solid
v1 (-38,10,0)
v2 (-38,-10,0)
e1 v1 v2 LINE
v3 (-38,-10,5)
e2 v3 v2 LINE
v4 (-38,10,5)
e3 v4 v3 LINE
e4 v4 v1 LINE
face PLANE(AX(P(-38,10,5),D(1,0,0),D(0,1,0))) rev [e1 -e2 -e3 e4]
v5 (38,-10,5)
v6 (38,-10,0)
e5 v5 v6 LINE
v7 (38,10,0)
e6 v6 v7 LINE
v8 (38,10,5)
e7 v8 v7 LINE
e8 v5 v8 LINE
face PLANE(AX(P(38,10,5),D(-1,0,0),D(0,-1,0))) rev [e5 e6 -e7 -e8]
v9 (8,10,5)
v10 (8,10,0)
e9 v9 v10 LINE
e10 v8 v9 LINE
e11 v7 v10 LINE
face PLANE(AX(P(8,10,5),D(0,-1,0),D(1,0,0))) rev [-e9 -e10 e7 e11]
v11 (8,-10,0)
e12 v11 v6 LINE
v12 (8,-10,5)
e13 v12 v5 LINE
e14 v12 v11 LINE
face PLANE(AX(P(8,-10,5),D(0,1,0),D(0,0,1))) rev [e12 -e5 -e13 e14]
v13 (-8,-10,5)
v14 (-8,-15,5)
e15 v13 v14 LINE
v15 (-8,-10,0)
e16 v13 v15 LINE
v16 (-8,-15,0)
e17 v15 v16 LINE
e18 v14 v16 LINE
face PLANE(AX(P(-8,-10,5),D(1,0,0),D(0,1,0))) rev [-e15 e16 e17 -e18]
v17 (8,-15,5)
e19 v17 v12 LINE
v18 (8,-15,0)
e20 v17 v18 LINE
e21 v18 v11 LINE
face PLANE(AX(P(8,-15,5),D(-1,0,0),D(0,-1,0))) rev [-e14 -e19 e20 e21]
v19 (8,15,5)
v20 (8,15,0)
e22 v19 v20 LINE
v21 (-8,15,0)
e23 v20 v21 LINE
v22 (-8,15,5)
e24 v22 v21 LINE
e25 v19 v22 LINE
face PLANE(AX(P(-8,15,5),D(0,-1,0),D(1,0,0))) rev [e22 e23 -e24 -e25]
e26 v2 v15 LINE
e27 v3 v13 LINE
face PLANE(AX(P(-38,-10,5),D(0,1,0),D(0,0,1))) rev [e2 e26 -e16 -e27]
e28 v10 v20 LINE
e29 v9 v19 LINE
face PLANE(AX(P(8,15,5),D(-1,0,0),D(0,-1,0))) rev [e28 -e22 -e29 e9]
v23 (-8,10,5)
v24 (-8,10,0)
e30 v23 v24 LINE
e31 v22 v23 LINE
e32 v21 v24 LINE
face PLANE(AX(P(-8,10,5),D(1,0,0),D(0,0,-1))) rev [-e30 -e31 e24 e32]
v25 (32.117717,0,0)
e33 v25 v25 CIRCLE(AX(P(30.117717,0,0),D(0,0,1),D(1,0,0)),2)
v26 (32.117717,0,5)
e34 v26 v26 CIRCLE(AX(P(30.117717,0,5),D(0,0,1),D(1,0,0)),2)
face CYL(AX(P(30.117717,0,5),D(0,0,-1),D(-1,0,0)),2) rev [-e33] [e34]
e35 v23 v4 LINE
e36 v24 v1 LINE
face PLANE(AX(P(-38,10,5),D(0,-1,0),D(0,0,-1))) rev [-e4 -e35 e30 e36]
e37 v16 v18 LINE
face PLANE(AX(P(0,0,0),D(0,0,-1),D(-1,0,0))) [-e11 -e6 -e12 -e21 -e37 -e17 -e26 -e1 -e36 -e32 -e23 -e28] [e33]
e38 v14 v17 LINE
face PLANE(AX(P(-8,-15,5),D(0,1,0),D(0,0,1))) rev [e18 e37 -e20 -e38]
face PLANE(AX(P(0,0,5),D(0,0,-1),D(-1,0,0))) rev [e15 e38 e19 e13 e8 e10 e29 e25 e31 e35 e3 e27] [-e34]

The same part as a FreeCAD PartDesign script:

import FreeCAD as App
import Part
import Sketcher

V = App.Vector


def add_polygon(sketch, points):
    """Adds a closed chain of lines whose ends are joined by coincident constraints."""
    first, n = sketch.GeometryCount, len(points)
    for a, b in zip(points, points[1:] + points[:1]):
        sketch.addGeometry(Part.LineSegment(App.Vector(*a, 0), App.Vector(*b, 0)), False)
    for i in range(n):
        sketch.addConstraint(Sketcher.Constraint("Coincident", first + i, 2, first + (i + 1) % n, 1))

doc = App.newDocument("Part")
params = doc.addObject("Spreadsheet::Sheet", "Params")
for row, (alias, value) in enumerate([
    ("sketch1_diameter", "4 mm"),
    ("sketch1_width", "30 mm"),
    ("sketch1_width2", "16 mm"),
    ("sketch1_height", "5 mm"),
    ("sketch1_height2", "20 mm"),
    ("pad1_length", "5 mm"),
], start=1):
    params.set(f"A{row}", alias)
    params.set(f"B{row}", "=" + value)
    params.setAlias(f"B{row}", alias)

body = doc.addObject("PartDesign::Body", "Body")

# Sketch on XY plane
sketch1 = body.newObject("Sketcher::SketchObject", "Sketch")
sketch1.AttachmentSupport = (doc.getObject("XY_Plane"), [""])
sketch1.MapMode = "FlatFace"
add_polygon(sketch1, [(-8, 15), (-8, 10), (-38, 10), (-38, -10), (-8, -10), (-8, -15), (8, -15), (8, -10), (38, -10), (38, 10), (8, 10), (8, 15)])  # lines 0-11
sketch1.addGeometry(Part.Circle(V(30.1, 0, 0), V(0, 0, 1), 2), False)  # 12
sketch1.addConstraint(Sketcher.Constraint("Vertical", 0))
sketch1.addConstraint(Sketcher.Constraint("Horizontal", 1))
sketch1.addConstraint(Sketcher.Constraint("Vertical", 2))
sketch1.addConstraint(Sketcher.Constraint("Horizontal", 3))
sketch1.addConstraint(Sketcher.Constraint("Vertical", 4))
sketch1.addConstraint(Sketcher.Constraint("Horizontal", 5))
sketch1.addConstraint(Sketcher.Constraint("Vertical", 6))
sketch1.addConstraint(Sketcher.Constraint("Horizontal", 7))
sketch1.addConstraint(Sketcher.Constraint("Vertical", 8))
sketch1.addConstraint(Sketcher.Constraint("Horizontal", 9))
sketch1.addConstraint(Sketcher.Constraint("Vertical", 10))
sketch1.addConstraint(Sketcher.Constraint("Horizontal", 11))
sketch1.addConstraint(Sketcher.Constraint("Symmetric", 0, 2, 6, 2, -1, 1))
sketch1.addConstraint(Sketcher.Constraint("Symmetric", 2, 2, 8, 2, -1, 1))
sketch1.addConstraint(Sketcher.Constraint("Symmetric", 4, 2, 10, 2, -1, 1))
sketch1.addConstraint(Sketcher.Constraint("Symmetric", 3, 2, 6, 2, -2))
sketch1.addConstraint(Sketcher.Constraint("PointOnObject", 12, 3, -1))
sketch1.addConstraint(Sketcher.Constraint("Diameter", 12, 4.0))
sketch1.addConstraint(Sketcher.Constraint("DistanceX", 1, 2, 1, 1, 30.0))
sketch1.addConstraint(Sketcher.Constraint("DistanceX", 5, 1, 5, 2, 16.0))
sketch1.addConstraint(Sketcher.Constraint("DistanceY", 0, 2, 0, 1, 5.0))
sketch1.addConstraint(Sketcher.Constraint("DistanceY", 2, 2, 2, 1, 20.0))
sketch1.addConstraint(Sketcher.Constraint("DistanceX", -1, 1, 12, 3, 30.117717))
sketch1.setExpression("Constraints[29]", "Params.sketch1_diameter")
sketch1.setExpression("Constraints[30]", "Params.sketch1_width")
sketch1.setExpression("Constraints[31]", "Params.sketch1_width2")
sketch1.setExpression("Constraints[32]", "Params.sketch1_height")
sketch1.setExpression("Constraints[33]", "Params.sketch1_height2")
pad1 = body.newObject("PartDesign::Pad", "Pad")
pad1.Profile = sketch1
pad1.setExpression("Length", "Params.pad1_length")

doc.recompute()
